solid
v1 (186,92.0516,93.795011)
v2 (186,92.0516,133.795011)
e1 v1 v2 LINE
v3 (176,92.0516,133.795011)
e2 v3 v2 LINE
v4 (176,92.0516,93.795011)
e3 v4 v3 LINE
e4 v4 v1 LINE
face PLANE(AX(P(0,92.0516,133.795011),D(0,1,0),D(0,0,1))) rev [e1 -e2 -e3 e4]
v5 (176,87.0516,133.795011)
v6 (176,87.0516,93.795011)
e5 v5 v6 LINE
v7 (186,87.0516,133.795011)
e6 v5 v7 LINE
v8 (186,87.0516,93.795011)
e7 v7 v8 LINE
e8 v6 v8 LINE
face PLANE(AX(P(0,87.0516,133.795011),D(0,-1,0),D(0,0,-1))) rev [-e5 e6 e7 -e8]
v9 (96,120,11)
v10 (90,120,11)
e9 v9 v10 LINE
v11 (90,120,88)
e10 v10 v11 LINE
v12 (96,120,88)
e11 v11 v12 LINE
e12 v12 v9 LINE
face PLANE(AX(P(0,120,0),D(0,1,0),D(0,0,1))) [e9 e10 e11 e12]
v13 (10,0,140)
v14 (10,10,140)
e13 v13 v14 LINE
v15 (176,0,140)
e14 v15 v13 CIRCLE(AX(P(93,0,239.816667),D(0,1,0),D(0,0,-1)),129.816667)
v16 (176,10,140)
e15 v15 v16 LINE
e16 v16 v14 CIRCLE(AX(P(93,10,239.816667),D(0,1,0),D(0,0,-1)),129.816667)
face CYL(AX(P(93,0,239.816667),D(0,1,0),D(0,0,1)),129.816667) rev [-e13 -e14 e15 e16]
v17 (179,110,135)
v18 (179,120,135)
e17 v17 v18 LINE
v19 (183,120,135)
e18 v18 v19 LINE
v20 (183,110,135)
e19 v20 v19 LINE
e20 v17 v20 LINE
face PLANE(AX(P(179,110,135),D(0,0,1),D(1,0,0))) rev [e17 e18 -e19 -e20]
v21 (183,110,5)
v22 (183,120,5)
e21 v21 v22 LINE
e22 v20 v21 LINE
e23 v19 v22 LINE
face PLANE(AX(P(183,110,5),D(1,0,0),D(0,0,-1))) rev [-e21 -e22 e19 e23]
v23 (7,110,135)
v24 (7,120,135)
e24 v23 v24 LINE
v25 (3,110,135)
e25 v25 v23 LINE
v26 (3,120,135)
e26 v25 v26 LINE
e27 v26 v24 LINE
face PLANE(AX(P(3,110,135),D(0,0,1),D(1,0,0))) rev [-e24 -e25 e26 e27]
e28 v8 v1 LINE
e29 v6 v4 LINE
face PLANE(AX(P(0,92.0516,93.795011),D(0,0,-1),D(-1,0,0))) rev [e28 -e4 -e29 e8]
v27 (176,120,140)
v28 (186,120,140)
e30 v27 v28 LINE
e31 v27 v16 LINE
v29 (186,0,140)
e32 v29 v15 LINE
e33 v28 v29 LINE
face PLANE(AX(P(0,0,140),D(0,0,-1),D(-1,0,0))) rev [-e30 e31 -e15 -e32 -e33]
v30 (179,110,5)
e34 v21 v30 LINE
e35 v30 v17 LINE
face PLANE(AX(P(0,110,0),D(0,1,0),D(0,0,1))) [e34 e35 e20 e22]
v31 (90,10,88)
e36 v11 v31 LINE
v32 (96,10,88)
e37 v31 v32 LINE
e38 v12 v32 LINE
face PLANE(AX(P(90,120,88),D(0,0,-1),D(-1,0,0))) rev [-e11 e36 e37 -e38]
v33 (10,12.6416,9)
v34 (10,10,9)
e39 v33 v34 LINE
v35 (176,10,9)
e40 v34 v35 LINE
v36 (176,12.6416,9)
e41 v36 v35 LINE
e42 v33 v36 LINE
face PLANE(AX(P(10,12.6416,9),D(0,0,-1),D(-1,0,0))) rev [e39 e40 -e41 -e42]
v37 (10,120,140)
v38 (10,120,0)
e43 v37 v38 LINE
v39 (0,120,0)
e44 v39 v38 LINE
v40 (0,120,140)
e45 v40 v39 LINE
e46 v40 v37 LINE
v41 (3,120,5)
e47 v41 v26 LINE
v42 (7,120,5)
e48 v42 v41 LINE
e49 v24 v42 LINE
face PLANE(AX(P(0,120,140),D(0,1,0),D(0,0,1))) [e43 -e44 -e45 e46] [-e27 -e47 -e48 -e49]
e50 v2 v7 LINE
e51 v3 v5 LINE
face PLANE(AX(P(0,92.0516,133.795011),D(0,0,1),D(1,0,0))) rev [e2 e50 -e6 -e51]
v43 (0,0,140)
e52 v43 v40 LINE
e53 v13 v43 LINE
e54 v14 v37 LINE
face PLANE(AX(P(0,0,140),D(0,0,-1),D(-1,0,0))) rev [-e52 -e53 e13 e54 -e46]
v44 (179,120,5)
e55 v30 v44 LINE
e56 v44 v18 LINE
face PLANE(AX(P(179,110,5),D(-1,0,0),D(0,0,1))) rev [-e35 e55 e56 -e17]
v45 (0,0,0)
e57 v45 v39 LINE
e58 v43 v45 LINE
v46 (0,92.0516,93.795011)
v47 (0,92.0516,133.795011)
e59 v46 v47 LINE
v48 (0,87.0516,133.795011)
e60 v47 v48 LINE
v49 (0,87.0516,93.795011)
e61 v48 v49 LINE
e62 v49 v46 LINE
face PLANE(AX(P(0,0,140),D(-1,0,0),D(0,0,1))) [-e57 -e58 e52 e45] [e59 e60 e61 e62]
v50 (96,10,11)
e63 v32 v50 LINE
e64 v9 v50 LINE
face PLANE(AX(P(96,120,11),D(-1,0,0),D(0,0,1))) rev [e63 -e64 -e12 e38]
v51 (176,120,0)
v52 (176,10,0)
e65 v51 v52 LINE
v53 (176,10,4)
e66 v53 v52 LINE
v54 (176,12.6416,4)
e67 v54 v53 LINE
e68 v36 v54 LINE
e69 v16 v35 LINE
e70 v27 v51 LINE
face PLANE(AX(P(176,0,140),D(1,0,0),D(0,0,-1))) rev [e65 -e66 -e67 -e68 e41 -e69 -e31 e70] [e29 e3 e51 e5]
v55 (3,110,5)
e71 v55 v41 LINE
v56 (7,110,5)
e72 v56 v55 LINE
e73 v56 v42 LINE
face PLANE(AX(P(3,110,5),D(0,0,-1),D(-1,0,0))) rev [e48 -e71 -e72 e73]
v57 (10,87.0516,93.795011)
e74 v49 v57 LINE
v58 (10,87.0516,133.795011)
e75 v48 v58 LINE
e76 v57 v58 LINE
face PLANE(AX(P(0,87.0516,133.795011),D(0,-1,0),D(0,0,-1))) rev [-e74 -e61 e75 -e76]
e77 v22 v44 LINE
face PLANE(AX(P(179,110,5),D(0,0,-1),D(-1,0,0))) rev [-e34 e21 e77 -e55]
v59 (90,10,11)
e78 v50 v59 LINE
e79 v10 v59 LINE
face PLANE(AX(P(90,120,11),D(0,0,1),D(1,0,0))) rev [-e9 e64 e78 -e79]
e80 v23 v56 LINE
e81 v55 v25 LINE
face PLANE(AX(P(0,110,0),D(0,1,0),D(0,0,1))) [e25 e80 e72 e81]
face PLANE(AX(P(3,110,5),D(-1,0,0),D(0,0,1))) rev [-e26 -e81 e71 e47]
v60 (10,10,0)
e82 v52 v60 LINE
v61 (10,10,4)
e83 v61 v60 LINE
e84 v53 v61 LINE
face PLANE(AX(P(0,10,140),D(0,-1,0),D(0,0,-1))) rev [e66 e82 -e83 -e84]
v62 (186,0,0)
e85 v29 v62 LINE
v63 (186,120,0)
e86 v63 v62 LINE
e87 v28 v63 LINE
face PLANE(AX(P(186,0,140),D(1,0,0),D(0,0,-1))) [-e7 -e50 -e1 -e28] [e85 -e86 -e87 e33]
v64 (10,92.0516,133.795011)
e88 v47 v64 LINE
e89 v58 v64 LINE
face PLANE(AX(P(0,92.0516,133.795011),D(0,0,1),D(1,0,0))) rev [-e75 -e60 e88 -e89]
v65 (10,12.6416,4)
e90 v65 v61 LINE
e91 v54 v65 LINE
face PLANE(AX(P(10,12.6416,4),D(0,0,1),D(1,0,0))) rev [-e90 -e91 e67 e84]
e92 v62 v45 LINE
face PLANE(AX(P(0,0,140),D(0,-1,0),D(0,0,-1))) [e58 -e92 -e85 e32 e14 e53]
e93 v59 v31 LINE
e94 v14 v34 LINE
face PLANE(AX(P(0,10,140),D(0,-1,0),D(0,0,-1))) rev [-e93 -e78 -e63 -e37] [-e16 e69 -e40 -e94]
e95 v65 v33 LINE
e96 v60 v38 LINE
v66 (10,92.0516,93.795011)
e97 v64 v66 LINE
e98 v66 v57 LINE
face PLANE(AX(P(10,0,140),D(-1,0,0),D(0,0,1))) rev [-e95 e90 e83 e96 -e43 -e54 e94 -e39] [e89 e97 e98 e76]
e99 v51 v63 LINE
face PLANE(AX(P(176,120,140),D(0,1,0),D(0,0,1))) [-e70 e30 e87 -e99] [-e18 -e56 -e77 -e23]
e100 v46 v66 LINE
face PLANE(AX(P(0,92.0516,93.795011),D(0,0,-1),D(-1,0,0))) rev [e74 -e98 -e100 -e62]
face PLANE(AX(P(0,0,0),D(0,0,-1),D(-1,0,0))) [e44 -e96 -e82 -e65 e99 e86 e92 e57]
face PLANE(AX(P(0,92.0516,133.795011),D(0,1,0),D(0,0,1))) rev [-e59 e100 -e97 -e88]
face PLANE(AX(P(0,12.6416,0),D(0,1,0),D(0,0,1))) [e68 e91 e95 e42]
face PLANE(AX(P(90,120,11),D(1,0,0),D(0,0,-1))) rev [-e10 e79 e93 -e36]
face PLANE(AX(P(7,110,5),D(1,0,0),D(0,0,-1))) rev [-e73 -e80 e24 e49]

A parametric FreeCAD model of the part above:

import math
import FreeCAD as App
import Part
import Sketcher
Q = App.Units.Quantity


def add_polygon(sketch, points):
    """Adds a closed chain of lines whose ends are joined by coincident constraints."""
    first, n = sketch.GeometryCount, len(points)
    for a, b in zip(points, points[1:] + points[:1]):
        sketch.addGeometry(Part.LineSegment(App.Vector(*a, 0), App.Vector(*b, 0)), False)
    for i in range(n):
        sketch.addConstraint(Sketcher.Constraint("Coincident", first + i, 2, first + (i + 1) % n, 1))

doc = App.newDocument("Part")
body = doc.addObject("PartDesign::Body", "Body")

# Sketch on XY plane
sketch1 = body.newObject("Sketcher::SketchObject", "Sketch")
sketch1.AttachmentSupport = (doc.getObject("XY_Plane"), [""])
sketch1.MapMode = "FlatFace"
add_polygon(sketch1, [(0, 120), (0, 0), (186, 0), (186, 120), (176, 120), (176, 10), (10, 10), (10, 120)])  # lines 0-7
sketch1.addConstraint([
    Sketcher.Constraint("Vertical", 0),
    Sketcher.Constraint("Horizontal", 1),
    Sketcher.Constraint("Vertical", 2),
    Sketcher.Constraint("Horizontal", 3),
    Sketcher.Constraint("Vertical", 4),
    Sketcher.Constraint("Horizontal", 5),
    Sketcher.Constraint("Vertical", 6),
    Sketcher.Constraint("Horizontal", 7),
    Sketcher.Constraint("Coincident", 0, 2, -1, 1),
    Sketcher.Constraint("Horizontal", 3, 2, 6, 2),
    Sketcher.Constraint("Equal", 3, 7),
    Sketcher.Constraint("DistanceX", 1, 1, 1, 2, Q("186 mm")),
    Sketcher.Constraint("DistanceX", 3, 2, 3, 1, Q("10 mm")),
    Sketcher.Constraint("DistanceY", 0, 2, 0, 1, Q("120 mm")),
    Sketcher.Constraint("DistanceY", 4, 2, 4, 1, Q("110 mm")),
])
pad1 = body.newObject("PartDesign::Pad", "Pad")
pad1.Profile = sketch1
pad1.Length = 140

# Sketch on XZ plane
sketch2 = body.newObject("Sketcher::SketchObject", "Sketch001")
sketch2.AttachmentSupport = (doc.getObject("XZ_Plane"), [""])
sketch2.MapMode = "FlatFace"
sketch2.AttachmentOffset = App.Placement(App.Vector(0, 0, -10), App.Rotation())
add_polygon(sketch2, [(10, 4), (10, 9), (176, 9), (176, 4)])  # lines 0-3
sketch2.addConstraint([
    Sketcher.Constraint("Vertical", 0),
    Sketcher.Constraint("Horizontal", 1),
    Sketcher.Constraint("Vertical", 2),
    Sketcher.Constraint("Horizontal", 3),
    Sketcher.Constraint("DistanceX", 1, 1, 1, 2, Q("166 mm")),
    Sketcher.Constraint("DistanceY", 0, 1, 0, 2, Q("5 mm")),
    Sketcher.Constraint("DistanceX", -1, 1, 0, 2, Q("10 mm")),
    Sketcher.Constraint("DistanceY", -1, 1, 0, 2, Q("9 mm")),
])
pad2 = body.newObject("PartDesign::Pad", "Pad001")
pad2.Profile = sketch2
pad2.Length = 2.6416
pad2.Reversed = True

# Sketch on YZ plane
sketch3 = body.newObject("Sketcher::SketchObject", "Sketch002")
sketch3.AttachmentSupport = (doc.getObject("YZ_Plane"), [""])
sketch3.MapMode = "FlatFace"
sketch3.AttachmentOffset = App.Placement(App.Vector(0, 0, 10), App.Rotation())
add_polygon(sketch3, [(92, 134), (87, 134), (87, 94), (92, 94)])  # lines 0-3
sketch3.addConstraint([
    Sketcher.Constraint("Horizontal", 0),
    Sketcher.Constraint("Vertical", 1),
    Sketcher.Constraint("Horizontal", 2),
    Sketcher.Constraint("Vertical", 3),
    Sketcher.Constraint("DistanceX", 0, 2, 0, 1, Q("5 mm")),
    Sketcher.Constraint("DistanceY", 1, 2, 1, 1, Q("40 mm")),
    Sketcher.Constraint("DistanceX", -1, 1, 0, 2, Q("87.0516 mm")),
    Sketcher.Constraint("DistanceY", -1, 1, 0, 2, Q("133.795011 mm")),
])
pocket1 = body.newObject("PartDesign::Pocket", "Pocket")
pocket1.Profile = sketch3
pocket1.Type = "ThroughAll"
pocket1.Midplane = True

# Sketch on XZ plane
sketch4 = body.newObject("Sketcher::SketchObject", "Sketch003")
sketch4.AttachmentSupport = (doc.getObject("XZ_Plane"), [""])
sketch4.MapMode = "FlatFace"
sketch4.AttachmentOffset = App.Placement(App.Vector(0, 0, -10), App.Rotation())
sketch4.addGeometry([
    Part.LineSegment(App.Vector(10, 140, 0), App.Vector(176, 140, 0)),
    Part.ArcOfCircle(Part.Circle(App.Vector(93, 240, 0), App.Vector(0, 0, 1), 130), math.radians(-130), math.radians(-50)),
], False)
sketch4.addConstraint([
    Sketcher.Constraint("Coincident", 0, 1, 1, 1),
    Sketcher.Constraint("Coincident", 1, 2, 0, 2),
    Sketcher.Constraint("Horizontal", 0),
    Sketcher.Constraint("DistanceX", 0, 1, 0, 2, Q("166 mm")),
    Sketcher.Constraint("DistanceX", -1, 1, 1, 3, Q("93 mm")),
    Sketcher.Constraint("DistanceY", -1, 1, 0, 1, Q("140 mm")),
    Sketcher.Constraint("Radius", 1, Q("129.816667 mm")),
])
pocket2 = body.newObject("PartDesign::Pocket", "Pocket001")
pocket2.Profile = sketch4
pocket2.Type = "ThroughAll"
pocket2.Reversed = True

# Sketch on XZ plane
sketch5 = body.newObject("Sketcher::SketchObject", "Sketch004")
sketch5.AttachmentSupport = (doc.getObject("XZ_Plane"), [""])
sketch5.MapMode = "FlatFace"
sketch5.AttachmentOffset = App.Placement(App.Vector(0, 0, -120), App.Rotation())
add_polygon(sketch5, [(3, 5), (3, 135), (7, 135), (7, 5)])  # lines 0-3
sketch5.addConstraint([
    Sketcher.Constraint("Vertical", 0),
    Sketcher.Constraint("Horizontal", 1),
    Sketcher.Constraint("Vertical", 2),
    Sketcher.Constraint("Horizontal", 3),
    Sketcher.Constraint("DistanceX", 1, 1, 1, 2, Q("4 mm")),
    Sketcher.Constraint("DistanceY", 0, 1, 0, 2, Q("130 mm")),
    Sketcher.Constraint("DistanceX", -1, 1, 0, 2, Q("3 mm")),
    Sketcher.Constraint("DistanceY", -1, 1, 0, 2, Q("135 mm")),
])
pocket3 = body.newObject("PartDesign::Pocket", "Pocket002")
pocket3.Profile = sketch5
pocket3.Length = 10
pocket3.Reversed = True

# Sketch on XZ plane
sketch6 = body.newObject("Sketcher::SketchObject", "Sketch005")
sketch6.AttachmentSupport = (doc.getObject("XZ_Plane"), [""])
sketch6.MapMode = "FlatFace"
sketch6.AttachmentOffset = App.Placement(App.Vector(0, 0, -120), App.Rotation())
add_polygon(sketch6, [(179, 5), (179, 135), (183, 135), (183, 5)])  # lines 0-3
sketch6.addConstraint([
    Sketcher.Constraint("Vertical", 0),
    Sketcher.Constraint("Horizontal", 1),
    Sketcher.Constraint("Vertical", 2),
    Sketcher.Constraint("Horizontal", 3),
    Sketcher.Constraint("DistanceX", 1, 1, 1, 2, Q("4 mm")),
    Sketcher.Constraint("DistanceY", 0, 1, 0, 2, Q("130 mm")),
    Sketcher.Constraint("DistanceX", -1, 1, 0, 2, Q("179 mm")),
    Sketcher.Constraint("DistanceY", -1, 1, 0, 2, Q("135 mm")),
])
pocket4 = body.newObject("PartDesign::Pocket", "Pocket003")
pocket4.Profile = sketch6
pocket4.Length = 10
pocket4.Reversed = True

# Sketch on XZ plane
sketch7 = body.newObject("Sketcher::SketchObject", "Sketch006")
sketch7.AttachmentSupport = (doc.getObject("XZ_Plane"), [""])
sketch7.MapMode = "FlatFace"
sketch7.AttachmentOffset = App.Placement(App.Vector(0, 0, -10), App.Rotation())
add_polygon(sketch7, [(90, 11), (90, 88), (96, 88), (96, 11)])  # lines 0-3
sketch7.addConstraint([
    Sketcher.Constraint("Vertical", 0),
    Sketcher.Constraint("Horizontal", 1),
    Sketcher.Constraint("Vertical", 2),
    Sketcher.Constraint("Horizontal", 3),
    Sketcher.Constraint("DistanceX", 1, 1, 1, 2, Q("6 mm")),
    Sketcher.Constraint("DistanceY", 0, 1, 0, 2, Q("77 mm")),
    Sketcher.Constraint("DistanceX", -1, 1, 0, 2, Q("90 mm")),
    Sketcher.Constraint("DistanceY", -1, 1, 0, 2, Q("88 mm")),
])
pad3 = body.newObject("PartDesign::Pad", "Pad002")
pad3.Profile = sketch7
pad3.Length = 110
pad3.Reversed = True

doc.recompute()
